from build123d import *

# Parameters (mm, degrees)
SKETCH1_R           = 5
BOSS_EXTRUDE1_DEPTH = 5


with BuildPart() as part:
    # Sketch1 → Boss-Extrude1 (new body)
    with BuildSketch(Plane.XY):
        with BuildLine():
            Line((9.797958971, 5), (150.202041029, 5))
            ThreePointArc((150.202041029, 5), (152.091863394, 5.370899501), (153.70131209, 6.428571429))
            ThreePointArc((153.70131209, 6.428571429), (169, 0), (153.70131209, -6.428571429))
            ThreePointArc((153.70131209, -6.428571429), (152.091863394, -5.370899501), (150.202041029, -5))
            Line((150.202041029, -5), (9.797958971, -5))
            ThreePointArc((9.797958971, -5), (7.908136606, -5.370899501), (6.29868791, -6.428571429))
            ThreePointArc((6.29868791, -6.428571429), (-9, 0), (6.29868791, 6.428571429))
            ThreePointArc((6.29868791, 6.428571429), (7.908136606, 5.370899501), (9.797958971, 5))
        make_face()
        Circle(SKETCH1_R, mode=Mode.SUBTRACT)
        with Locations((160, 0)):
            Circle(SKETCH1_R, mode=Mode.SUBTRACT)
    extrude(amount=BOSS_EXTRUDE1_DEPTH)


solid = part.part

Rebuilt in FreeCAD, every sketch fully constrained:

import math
import FreeCAD as App
import Part
import Sketcher
Q = App.Units.Quantity

doc = App.newDocument("Part")
params = doc.addObject("Spreadsheet::Sheet", "Params")
for row, (alias, value) in enumerate([
    ("sketch1_diameter", "10 mm"),
    ("sketch1_radius", "9 mm"),
    ("pad1_length", "5 mm"),
], start=1):
    params.set(f"A{row}", alias)
    params.set(f"B{row}", "=" + value)
    params.setAlias(f"B{row}", alias)

body = doc.addObject("PartDesign::Body", "Body")

sketch1 = body.newObject("Sketcher::SketchObject", "Sketch")
sketch1.AttachmentSupport = (doc.getObject("XY_Plane"), [""])
sketch1.MapMode = "FlatFace"
sketch1.addGeometry([
    Part.LineSegment(App.Vector(150.2, 5, 0), App.Vector(9.8, 5, 0)),
    Part.ArcOfCircle(Part.Circle(App.Vector(9.8, 10, 0), App.Vector(0, 0, 1), 5), math.radians(-134), math.radians(-90)),
    Part.ArcOfCircle(Part.Circle(App.Vector(0, 0, 0), App.Vector(0, 0, 1), 9), math.radians(46), math.radians(314)),
    Part.ArcOfCircle(Part.Circle(App.Vector(9.8, -10, 0), App.Vector(0, 0, 1), 5), math.radians(90), math.radians(134)),
    Part.LineSegment(App.Vector(9.8, -5, 0), App.Vector(150.2, -5, 0)),
    Part.ArcOfCircle(Part.Circle(App.Vector(150.2, -10, 0), App.Vector(0, 0, 1), 5), math.radians(46), math.radians(90)),
    Part.ArcOfCircle(Part.Circle(App.Vector(160, 0, 0), App.Vector(0, 0, 1), 9), math.radians(-134), math.radians(134)),
    Part.ArcOfCircle(Part.Circle(App.Vector(150.2, 10, 0), App.Vector(0, 0, 1), 5), math.radians(-90), math.radians(-46)),
    Part.Circle(App.Vector(160, 0, 0), App.Vector(0, 0, 1), 5),
    Part.Circle(App.Vector(0, 0, 0), App.Vector(0, 0, 1), 5),
], False)
sketch1.addConstraint([
    Sketcher.Constraint("Tangent", 0, 2, 1, 2),
    Sketcher.Constraint("Tangent", 1, 1, 2, 1),
    Sketcher.Constraint("Tangent", 2, 2, 3, 2),
    Sketcher.Constraint("Tangent", 3, 1, 4, 1),
    Sketcher.Constraint("Tangent", 4, 2, 5, 2),
    Sketcher.Constraint("Tangent", 5, 1, 6, 1),
    Sketcher.Constraint("Tangent", 6, 2, 7, 2),
    Sketcher.Constraint("Tangent", 7, 1, 0, 1),
    Sketcher.Constraint("Horizontal", 0),
    Sketcher.Constraint("Horizontal", 4),
    Sketcher.Constraint("Coincident", 2, 3, -1, 1),
    Sketcher.Constraint("Coincident", 9, 3, -1, 1),
    Sketcher.Constraint("Coincident", 8, 3, 6, 3),
    Sketcher.Constraint("Equal", 1, 3),
    Sketcher.Constraint("Equal", 3, 5),
    Sketcher.Constraint("Equal", 2, 6),
    Sketcher.Constraint("Equal", 5, 7),
    Sketcher.Constraint("Equal", 7, 8),
    Sketcher.Constraint("Equal", 8, 9),
    Sketcher.Constraint("Symmetric", 5, 3, 7, 3, -1),
    Sketcher.Constraint("Diameter", 8, Q("10 mm")),
    Sketcher.Constraint("Radius", 2, Q("9 mm")),
    Sketcher.Constraint("DistanceY", -1, 1, 1, 3, Q("10 mm")),
    Sketcher.Constraint("DistanceX", -1, 1, 6, 3, Q("160 mm")),
])
sketch1.setExpression("Constraints[20]", "Params.sketch1_diameter")
sketch1.setExpression("Constraints[21]", "Params.sketch1_radius")
pad1 = body.newObject("PartDesign::Pad", "Pad")
pad1.Profile = sketch1
pad1.setExpression("Length", "Params.pad1_length")

doc.recompute()
